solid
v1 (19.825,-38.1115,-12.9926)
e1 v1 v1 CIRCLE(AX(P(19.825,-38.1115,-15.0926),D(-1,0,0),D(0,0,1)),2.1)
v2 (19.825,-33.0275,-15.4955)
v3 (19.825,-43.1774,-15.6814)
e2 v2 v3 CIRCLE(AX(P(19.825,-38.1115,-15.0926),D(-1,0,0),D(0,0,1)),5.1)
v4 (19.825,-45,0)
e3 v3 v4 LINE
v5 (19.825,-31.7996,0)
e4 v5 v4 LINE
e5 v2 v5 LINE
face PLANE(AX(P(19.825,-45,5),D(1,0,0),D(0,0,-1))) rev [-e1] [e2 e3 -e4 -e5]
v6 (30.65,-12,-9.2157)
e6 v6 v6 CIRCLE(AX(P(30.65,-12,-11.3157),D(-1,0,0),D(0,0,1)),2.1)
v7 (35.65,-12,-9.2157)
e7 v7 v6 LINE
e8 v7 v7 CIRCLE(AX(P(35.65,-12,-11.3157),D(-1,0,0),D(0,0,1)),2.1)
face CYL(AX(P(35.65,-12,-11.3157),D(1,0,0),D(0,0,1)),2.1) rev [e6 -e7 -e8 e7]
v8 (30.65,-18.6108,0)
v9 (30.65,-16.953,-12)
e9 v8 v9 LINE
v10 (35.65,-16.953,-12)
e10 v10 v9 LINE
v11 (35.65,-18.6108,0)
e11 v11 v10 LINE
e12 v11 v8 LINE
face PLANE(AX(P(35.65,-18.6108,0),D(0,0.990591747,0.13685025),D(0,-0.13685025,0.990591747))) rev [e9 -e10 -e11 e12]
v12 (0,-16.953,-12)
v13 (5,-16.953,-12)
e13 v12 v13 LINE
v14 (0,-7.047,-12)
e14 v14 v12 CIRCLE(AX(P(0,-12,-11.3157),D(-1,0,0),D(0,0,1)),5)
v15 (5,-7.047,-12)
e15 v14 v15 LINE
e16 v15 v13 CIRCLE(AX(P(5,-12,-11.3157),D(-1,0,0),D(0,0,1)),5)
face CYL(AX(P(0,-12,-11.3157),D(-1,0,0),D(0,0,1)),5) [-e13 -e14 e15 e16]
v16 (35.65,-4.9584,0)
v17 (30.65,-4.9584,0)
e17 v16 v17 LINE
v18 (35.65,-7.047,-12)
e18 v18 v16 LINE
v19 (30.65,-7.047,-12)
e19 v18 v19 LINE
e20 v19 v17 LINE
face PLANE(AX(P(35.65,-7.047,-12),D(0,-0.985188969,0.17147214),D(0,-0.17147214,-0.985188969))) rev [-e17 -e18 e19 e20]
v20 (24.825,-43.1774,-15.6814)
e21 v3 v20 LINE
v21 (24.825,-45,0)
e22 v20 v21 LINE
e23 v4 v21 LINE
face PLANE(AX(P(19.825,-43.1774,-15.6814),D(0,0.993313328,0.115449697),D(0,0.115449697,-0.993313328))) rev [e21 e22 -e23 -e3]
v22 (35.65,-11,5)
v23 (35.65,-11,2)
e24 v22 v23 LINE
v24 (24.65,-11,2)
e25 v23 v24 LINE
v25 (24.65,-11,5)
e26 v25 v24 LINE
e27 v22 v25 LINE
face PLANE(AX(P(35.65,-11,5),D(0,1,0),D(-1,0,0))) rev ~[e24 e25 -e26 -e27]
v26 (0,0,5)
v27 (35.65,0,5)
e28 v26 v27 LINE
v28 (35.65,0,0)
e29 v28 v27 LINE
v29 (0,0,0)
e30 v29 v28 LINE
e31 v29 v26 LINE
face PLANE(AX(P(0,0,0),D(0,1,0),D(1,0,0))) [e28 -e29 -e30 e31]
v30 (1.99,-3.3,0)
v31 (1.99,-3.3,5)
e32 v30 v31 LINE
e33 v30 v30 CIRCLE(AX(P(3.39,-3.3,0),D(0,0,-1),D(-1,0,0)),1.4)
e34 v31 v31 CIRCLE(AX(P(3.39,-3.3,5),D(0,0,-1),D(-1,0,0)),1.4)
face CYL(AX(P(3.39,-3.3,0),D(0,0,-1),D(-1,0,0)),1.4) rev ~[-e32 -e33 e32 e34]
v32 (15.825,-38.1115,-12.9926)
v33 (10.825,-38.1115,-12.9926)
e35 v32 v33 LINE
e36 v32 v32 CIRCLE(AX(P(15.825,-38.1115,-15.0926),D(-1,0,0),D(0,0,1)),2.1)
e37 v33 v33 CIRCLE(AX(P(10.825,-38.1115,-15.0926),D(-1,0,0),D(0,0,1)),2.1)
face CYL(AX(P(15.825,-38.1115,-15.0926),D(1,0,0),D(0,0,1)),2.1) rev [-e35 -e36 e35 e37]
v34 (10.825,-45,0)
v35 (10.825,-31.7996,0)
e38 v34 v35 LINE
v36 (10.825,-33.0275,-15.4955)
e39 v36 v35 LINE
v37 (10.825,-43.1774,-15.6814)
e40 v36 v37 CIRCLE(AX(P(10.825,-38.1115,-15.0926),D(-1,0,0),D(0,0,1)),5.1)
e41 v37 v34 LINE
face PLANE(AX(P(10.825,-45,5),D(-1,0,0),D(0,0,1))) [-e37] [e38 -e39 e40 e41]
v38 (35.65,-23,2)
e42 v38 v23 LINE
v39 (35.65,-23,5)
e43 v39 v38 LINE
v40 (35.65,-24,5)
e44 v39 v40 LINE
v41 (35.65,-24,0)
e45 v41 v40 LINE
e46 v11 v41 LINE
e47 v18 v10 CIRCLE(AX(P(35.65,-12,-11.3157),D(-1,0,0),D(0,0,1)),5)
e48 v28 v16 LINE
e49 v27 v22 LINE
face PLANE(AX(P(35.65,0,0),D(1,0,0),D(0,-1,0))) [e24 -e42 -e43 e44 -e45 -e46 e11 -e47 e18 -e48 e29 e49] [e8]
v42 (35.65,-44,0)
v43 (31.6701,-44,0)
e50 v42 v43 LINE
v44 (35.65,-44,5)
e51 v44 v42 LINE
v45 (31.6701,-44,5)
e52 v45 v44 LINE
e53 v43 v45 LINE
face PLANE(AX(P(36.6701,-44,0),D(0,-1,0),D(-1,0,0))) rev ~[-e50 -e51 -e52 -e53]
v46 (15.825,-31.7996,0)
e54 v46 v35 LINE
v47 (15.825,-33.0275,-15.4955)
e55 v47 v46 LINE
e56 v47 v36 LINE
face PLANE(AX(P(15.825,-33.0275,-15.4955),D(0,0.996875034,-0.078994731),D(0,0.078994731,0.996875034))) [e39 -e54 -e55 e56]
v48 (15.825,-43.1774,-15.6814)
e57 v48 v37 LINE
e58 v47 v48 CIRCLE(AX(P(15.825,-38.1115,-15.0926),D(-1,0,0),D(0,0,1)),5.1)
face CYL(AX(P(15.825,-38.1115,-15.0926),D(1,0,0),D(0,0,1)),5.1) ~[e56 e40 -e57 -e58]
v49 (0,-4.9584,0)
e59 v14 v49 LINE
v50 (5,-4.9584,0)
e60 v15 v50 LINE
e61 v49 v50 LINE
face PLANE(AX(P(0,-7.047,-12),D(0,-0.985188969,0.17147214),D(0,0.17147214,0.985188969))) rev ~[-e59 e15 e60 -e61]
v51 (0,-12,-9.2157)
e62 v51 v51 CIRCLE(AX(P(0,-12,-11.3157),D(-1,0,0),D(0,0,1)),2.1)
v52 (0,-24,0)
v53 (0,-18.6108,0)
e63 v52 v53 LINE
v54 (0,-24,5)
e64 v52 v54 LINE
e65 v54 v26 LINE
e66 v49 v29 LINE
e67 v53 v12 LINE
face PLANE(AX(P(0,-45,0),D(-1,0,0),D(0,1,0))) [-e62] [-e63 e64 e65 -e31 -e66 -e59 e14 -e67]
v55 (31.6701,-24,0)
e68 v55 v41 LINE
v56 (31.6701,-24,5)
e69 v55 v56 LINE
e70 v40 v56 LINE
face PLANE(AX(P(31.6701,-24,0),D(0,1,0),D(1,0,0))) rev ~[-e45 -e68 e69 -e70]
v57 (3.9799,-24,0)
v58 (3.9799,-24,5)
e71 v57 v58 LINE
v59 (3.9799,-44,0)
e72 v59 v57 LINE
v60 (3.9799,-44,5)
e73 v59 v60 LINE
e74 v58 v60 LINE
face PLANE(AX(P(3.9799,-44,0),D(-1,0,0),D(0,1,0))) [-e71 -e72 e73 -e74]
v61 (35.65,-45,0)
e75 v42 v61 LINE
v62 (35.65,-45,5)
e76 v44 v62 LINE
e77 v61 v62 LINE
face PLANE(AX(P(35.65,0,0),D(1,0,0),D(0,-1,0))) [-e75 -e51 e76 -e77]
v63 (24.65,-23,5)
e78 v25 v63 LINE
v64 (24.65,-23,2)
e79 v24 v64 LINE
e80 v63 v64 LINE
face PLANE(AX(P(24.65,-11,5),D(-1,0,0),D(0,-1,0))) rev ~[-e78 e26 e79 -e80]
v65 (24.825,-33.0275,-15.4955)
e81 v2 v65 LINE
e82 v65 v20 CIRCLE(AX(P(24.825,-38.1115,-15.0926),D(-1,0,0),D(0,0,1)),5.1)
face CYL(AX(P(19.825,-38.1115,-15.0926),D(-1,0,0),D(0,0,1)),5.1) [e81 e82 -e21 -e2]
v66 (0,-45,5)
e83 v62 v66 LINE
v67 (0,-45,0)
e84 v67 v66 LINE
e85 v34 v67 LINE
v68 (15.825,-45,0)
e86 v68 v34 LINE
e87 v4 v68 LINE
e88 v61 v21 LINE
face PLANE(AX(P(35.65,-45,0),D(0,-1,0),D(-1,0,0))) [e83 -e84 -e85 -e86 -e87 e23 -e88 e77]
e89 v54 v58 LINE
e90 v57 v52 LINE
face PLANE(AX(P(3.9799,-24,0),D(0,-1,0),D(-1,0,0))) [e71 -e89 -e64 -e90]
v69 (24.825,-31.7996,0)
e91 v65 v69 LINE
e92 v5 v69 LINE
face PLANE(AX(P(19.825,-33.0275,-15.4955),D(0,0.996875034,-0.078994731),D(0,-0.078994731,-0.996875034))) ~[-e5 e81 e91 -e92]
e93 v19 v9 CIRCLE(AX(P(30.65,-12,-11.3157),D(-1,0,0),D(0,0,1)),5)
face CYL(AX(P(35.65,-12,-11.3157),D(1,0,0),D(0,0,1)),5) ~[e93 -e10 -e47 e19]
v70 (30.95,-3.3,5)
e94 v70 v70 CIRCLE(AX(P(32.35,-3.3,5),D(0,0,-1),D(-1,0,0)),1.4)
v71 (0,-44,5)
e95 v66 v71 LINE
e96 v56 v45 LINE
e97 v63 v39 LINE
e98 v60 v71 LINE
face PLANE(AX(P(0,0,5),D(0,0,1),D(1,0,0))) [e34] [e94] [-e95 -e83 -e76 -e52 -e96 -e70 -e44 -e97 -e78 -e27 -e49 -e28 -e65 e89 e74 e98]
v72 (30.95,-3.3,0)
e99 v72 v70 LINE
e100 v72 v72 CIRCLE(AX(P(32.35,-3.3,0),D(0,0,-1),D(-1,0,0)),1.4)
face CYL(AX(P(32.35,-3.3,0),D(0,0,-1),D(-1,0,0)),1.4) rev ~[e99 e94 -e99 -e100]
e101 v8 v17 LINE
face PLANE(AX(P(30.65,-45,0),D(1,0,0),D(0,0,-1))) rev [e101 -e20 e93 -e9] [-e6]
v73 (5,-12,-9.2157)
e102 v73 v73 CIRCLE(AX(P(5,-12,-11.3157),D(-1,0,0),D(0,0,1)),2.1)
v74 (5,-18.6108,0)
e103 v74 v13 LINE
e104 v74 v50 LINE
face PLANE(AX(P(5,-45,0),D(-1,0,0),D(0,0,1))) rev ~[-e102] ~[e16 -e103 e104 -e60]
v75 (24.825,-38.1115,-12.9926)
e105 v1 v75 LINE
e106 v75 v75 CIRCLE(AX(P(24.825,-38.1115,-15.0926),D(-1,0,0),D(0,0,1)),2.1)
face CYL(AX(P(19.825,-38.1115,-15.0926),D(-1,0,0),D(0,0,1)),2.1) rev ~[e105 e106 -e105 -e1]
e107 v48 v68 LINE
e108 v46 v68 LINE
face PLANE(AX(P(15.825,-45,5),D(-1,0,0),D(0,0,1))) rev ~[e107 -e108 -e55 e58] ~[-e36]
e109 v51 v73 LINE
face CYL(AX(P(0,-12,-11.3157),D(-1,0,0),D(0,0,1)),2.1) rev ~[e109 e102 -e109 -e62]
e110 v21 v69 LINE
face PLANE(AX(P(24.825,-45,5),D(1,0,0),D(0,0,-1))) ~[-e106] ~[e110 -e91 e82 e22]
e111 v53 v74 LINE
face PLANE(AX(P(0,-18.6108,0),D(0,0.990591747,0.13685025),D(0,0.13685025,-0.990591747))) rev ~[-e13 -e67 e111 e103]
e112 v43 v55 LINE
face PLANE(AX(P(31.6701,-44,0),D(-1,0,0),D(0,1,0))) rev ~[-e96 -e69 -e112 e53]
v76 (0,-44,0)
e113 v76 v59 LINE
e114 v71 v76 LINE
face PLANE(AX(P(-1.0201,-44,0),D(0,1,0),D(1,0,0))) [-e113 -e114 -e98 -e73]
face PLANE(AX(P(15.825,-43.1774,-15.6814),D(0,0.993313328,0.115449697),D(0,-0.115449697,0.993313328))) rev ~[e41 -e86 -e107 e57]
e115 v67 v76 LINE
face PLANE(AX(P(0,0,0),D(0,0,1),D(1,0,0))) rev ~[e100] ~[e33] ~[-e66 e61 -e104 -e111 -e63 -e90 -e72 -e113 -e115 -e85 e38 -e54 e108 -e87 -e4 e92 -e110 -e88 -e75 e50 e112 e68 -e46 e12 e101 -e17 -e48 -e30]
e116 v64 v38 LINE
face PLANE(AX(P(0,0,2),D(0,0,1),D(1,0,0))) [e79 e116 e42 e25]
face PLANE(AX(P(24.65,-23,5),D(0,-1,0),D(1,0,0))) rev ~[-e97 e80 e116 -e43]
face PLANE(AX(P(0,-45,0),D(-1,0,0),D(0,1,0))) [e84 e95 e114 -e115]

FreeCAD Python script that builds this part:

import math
import FreeCAD as App
import Part
import Sketcher

V = App.Vector
Q = App.Units.Quantity

doc = App.newDocument("Part")
body = doc.addObject("PartDesign::Body", "Body")

# Sketch on XY plane
sketch1 = body.newObject("Sketcher::SketchObject", "Sketch")
sketch1.AttachmentSupport = (doc.getObject("XY_Plane"), [""])
sketch1.MapMode = "FlatFace"
sketch1.addGeometry([
    Part.LineSegment(V(36, 0, 0), V(0, 0, 0)),
    Part.LineSegment(V(0, 0, 0), V(0, -45, 0)),
    Part.LineSegment(V(0, -45, 0), V(36, -45, 0)),
    Part.LineSegment(V(36, -45, 0), V(36, 0, 0)),
], False)
sketch1.addConstraint([
    Sketcher.Constraint("Coincident", 0, 2, 1, 1),
    Sketcher.Constraint("Coincident", 1, 2, 2, 1),
    Sketcher.Constraint("Coincident", 2, 2, 3, 1),
    Sketcher.Constraint("Coincident", 3, 2, 0, 1),
    Sketcher.Constraint("Horizontal", 0),
    Sketcher.Constraint("Vertical", 1),
    Sketcher.Constraint("Horizontal", 2),
    Sketcher.Constraint("Vertical", 3),
    Sketcher.Constraint("Coincident", 0, 2, -1, 1),
    Sketcher.Constraint("DistanceY", 1, 2, 1, 1, 45.0),
    Sketcher.Constraint("DistanceX", 0, 2, 0, 1, 35.65),
])
pad1 = body.newObject("PartDesign::Pad", "Pad")
pad1.Profile = sketch1
pad1.Length = 5

# Sketch on YZ plane
sketch2 = body.newObject("Sketcher::SketchObject", "Sketch001")
sketch2.AttachmentSupport = (doc.getObject("YZ_Plane"), [""])
sketch2.MapMode = "FlatFace"
sketch2.addGeometry([
    Part.LineSegment(V(-17, -12, 0), V(-18.6, 0, 0)),  # 0
    Part.LineSegment(V(-18.6, 0, 0), V(-5, 0, 0)),  # 1
    Part.LineSegment(V(-5, 0, 0), V(-7, -12, 0)),  # 2
    Part.ArcOfCircle(Part.Circle(V(-12, -11.3, 0), V(0, 0, 1), 5), math.radians(-172), math.radians(-8)),  # 3
    Part.Circle(V(-12, -11.3, 0), V(0, 0, 1), 2.1),  # 4
], False)
sketch2.addConstraint([
    Sketcher.Constraint("Coincident", 0, 2, 1, 1),
    Sketcher.Constraint("Coincident", 1, 2, 2, 1),
    Sketcher.Constraint("Coincident", 2, 2, 3, 2),
    Sketcher.Constraint("Tangent", 3, 1, 0, 1),
    Sketcher.Constraint("Horizontal", 1),
    Sketcher.Constraint("Coincident", 4, 3, 3, 3),
    Sketcher.Constraint("PointOnObject", 0, 2, -1),
    Sketcher.Constraint("Horizontal", 2, 2, 3, 1),
    Sketcher.Constraint("Radius", 3, 5.0),
    Sketcher.Constraint("Diameter", 4, 4.2),
    Sketcher.Constraint("DistanceX", 3, 3, -1, 1, 12.0),
    Sketcher.Constraint("DistanceY", 2, 2, -1, 1, 12.0),
    Sketcher.Constraint("Distance", 0, 12.114),
    Sketcher.Constraint("DistanceX", 1, 1, 1, 2, 13.6524),
])
pad2 = body.newObject("PartDesign::Pad", "Pad001")
pad2.Profile = sketch2
pad2.Length = 5
doc.recompute()

datumplane = body.newObject("PartDesign::Plane", "DatumPlane")
datumplane.AttachmentSupport = (doc.getObject("YZ_Plane"), [""])
datumplane.MapMode = "FlatFace"
datumplane.AttachmentOffset = App.Placement(V(0, 0, 17.825), App.Rotation())
mirrored = body.newObject("PartDesign::Mirrored", "Mirrored")
mirrored.Originals = [pad2]
mirrored.MirrorPlane = (datumplane, [""])
body.Tip = mirrored

# Sketch on XY plane
sketch3 = body.newObject("Sketcher::SketchObject", "Sketch002")
sketch3.AttachmentSupport = (doc.getObject("XY_Plane"), [""])
sketch3.MapMode = "FlatFace"
sketch3.addGeometry([
    Part.Circle(V(32.4, -3.3, 0), V(0, 0, 1), 1.4),  # 0
    Part.Circle(V(3.4, -3.3, 0), V(0, 0, 1), 1.4),  # 1
    Part.LineSegment(V(-1, -24, 0), V(4, -24, 0)),  # 2
    Part.LineSegment(V(4, -24, 0), V(4, -44, 0)),  # 3
    Part.LineSegment(V(4, -44, 0), V(-1, -44, 0)),  # 4
    Part.LineSegment(V(-1, -44, 0), V(-1, -24, 0)),  # 5
    Part.LineSegment(V(31.7, -44, 0), V(31.7, -24, 0)),  # 6
    Part.LineSegment(V(31.7, -24, 0), V(36.7, -24, 0)),  # 7
    Part.LineSegment(V(36.7, -24, 0), V(36.7, -44, 0)),  # 8
    Part.LineSegment(V(36.7, -44, 0), V(31.7, -44, 0)),  # 9
], False)
sketch3.addConstraint([
    Sketcher.Constraint("Coincident", 2, 2, 3, 1),
    Sketcher.Constraint("Coincident", 3, 2, 4, 1),
    Sketcher.Constraint("Coincident", 4, 2, 5, 1),
    Sketcher.Constraint("Coincident", 5, 2, 2, 1),
    Sketcher.Constraint("Coincident", 6, 2, 7, 1),
    Sketcher.Constraint("Coincident", 7, 2, 8, 1),
    Sketcher.Constraint("Coincident", 8, 2, 9, 1),
    Sketcher.Constraint("Coincident", 9, 2, 6, 1),
    Sketcher.Constraint("Horizontal", 2),
    Sketcher.Constraint("Vertical", 3),
    Sketcher.Constraint("Horizontal", 4),
    Sketcher.Constraint("Vertical", 5),
    Sketcher.Constraint("Vertical", 6),
    Sketcher.Constraint("Horizontal", 7),
    Sketcher.Constraint("Vertical", 8),
    Sketcher.Constraint("Horizontal", 9),
    Sketcher.Constraint("Equal", 0, 1),
    Sketcher.Constraint("Horizontal", 0, 3, 1, 3),
    Sketcher.Constraint("Horizontal", 5, 2, 6, 2),
    Sketcher.Constraint("Horizontal", 4, 2, 8, 2),
    Sketcher.Constraint("Equal", 4, 7),
    Sketcher.Constraint("DistanceX", 2, 1, 2, 2, 5.0),
    Sketcher.Constraint("DistanceY", 3, 2, 3, 1, 20.0),
    Sketcher.Constraint("Diameter", 0, 2.8),
    Sketcher.Constraint("DistanceY", 2, 2, -1, 1, 24.0),
    Sketcher.Constraint("DistanceY", 0, 3, -1, 1, 3.3),
    Sketcher.Constraint("DistanceX", -1, 1, 0, 3, 32.35),
    Sketcher.Constraint("DistanceX", -1, 1, 1, 3, 3.39),
    Sketcher.Constraint("DistanceX", -1, 1, 2, 2, 3.98),
    Sketcher.Constraint("DistanceX", -1, 1, 6, 2, 31.67),
])
pocket1 = body.newObject("PartDesign::Pocket", "Pocket")
pocket1.Profile = sketch3
pocket1.Type = "ThroughAll"
pocket1.Reversed = True

# Sketch on XY plane
sketch4 = body.newObject("Sketcher::SketchObject", "Sketch003")
sketch4.AttachmentSupport = (doc.getObject("XY_Plane"), [""])
sketch4.MapMode = "FlatFace"
sketch4.AttachmentOffset = App.Placement(V(0, 0, 5), App.Rotation())
sketch4.addGeometry([
    Part.LineSegment(V(25, -23, 0), V(36, -23, 0)),
    Part.LineSegment(V(36, -23, 0), V(36, -11, 0)),
    Part.LineSegment(V(36, -11, 0), V(25, -11, 0)),
    Part.LineSegment(V(25, -11, 0), V(25, -23, 0)),
], False)
sketch4.addConstraint([
    Sketcher.Constraint("Coincident", 0, 2, 1, 1),
    Sketcher.Constraint("Coincident", 1, 2, 2, 1),
    Sketcher.Constraint("Coincident", 2, 2, 3, 1),
    Sketcher.Constraint("Coincident", 3, 2, 0, 1),
    Sketcher.Constraint("Horizontal", 0),
    Sketcher.Constraint("Vertical", 1),
    Sketcher.Constraint("Horizontal", 2),
    Sketcher.Constraint("Vertical", 3),
    Sketcher.Constraint("DistanceX", 0, 1, 0, 2, 11.0),
    Sketcher.Constraint("DistanceY", 1, 1, 1, 2, 12.0),
    Sketcher.Constraint("DistanceY", 1, 2, -1, 1, 11.0),
    Sketcher.Constraint("DistanceX", -1, 1, 0, 2, 35.65),
])
pocket2 = body.newObject("PartDesign::Pocket", "Pocket001")
pocket2.Profile = sketch4
pocket2.Length = 3

# Sketch on YZ plane
sketch5 = body.newObject("Sketcher::SketchObject", "Sketch004")
sketch5.AttachmentSupport = (doc.getObject("YZ_Plane"), [""])
sketch5.MapMode = "FlatFace"
sketch5.AttachmentOffset = App.Placement(V(0, 0, 15.825), App.Rotation())
sketch5.addGeometry([
    Part.ArcOfCircle(Part.Circle(V(-38.1, -15.1, 0), V(0, 0, 1), 5.1), math.radians(-173), math.radians(-5)),  # 0
    Part.LineSegment(V(-43.2, -15.7, 0), V(-45, 0, 0)),  # 1
    Part.LineSegment(V(-45, 0, 0), V(-31.8, 0, 0)),  # 2
    Part.LineSegment(V(-31.8, 0, 0), V(-33, -15.5, 0)),  # 3
    Part.Circle(V(-38.1, -15.1, 0), V(0, 0, 1), 2.1),  # 4
], False)
sketch5.addConstraint([
    Sketcher.Constraint("Tangent", 0, 1, 1, 1),
    Sketcher.Constraint("Coincident", 1, 2, 2, 1),
    Sketcher.Constraint("Coincident", 2, 2, 3, 1),
    Sketcher.Constraint("Tangent", 3, 2, 0, 2),
    Sketcher.Constraint("Horizontal", 2),
    Sketcher.Constraint("Coincident", 4, 3, 0, 3),
    Sketcher.Constraint("PointOnObject", 1, 2, -1),
    Sketcher.Constraint("Diameter", 4, 4.2),
    Sketcher.Constraint("Radius", 0, 5.1),
    Sketcher.Constraint("DistanceX", 1, 2, -1, 1, 45.0),
    Sketcher.Constraint("Angle", 1, Q("96.6296 deg")),
    Sketcher.Constraint("Angle", 3, Q("-94.5308 deg")),
    Sketcher.Constraint("Distance", 1, 15.787),
])
pad3 = body.newObject("PartDesign::Pad", "Pad002")
pad3.Profile = sketch5
pad3.Length = 5
pad3.Reversed = True
doc.recompute()

datumplane2 = body.newObject("PartDesign::Plane", "DatumPlane001")
datumplane2.AttachmentSupport = (doc.getObject("YZ_Plane"), [""])
datumplane2.MapMode = "FlatFace"
datumplane2.AttachmentOffset = App.Placement(V(0, 0, 17.825), App.Rotation())
mirrored2 = body.newObject("PartDesign::Mirrored", "Mirrored001")
mirrored2.Originals = [pad3]
mirrored2.MirrorPlane = (datumplane2, [""])
body.Tip = mirrored2

doc.recompute()
